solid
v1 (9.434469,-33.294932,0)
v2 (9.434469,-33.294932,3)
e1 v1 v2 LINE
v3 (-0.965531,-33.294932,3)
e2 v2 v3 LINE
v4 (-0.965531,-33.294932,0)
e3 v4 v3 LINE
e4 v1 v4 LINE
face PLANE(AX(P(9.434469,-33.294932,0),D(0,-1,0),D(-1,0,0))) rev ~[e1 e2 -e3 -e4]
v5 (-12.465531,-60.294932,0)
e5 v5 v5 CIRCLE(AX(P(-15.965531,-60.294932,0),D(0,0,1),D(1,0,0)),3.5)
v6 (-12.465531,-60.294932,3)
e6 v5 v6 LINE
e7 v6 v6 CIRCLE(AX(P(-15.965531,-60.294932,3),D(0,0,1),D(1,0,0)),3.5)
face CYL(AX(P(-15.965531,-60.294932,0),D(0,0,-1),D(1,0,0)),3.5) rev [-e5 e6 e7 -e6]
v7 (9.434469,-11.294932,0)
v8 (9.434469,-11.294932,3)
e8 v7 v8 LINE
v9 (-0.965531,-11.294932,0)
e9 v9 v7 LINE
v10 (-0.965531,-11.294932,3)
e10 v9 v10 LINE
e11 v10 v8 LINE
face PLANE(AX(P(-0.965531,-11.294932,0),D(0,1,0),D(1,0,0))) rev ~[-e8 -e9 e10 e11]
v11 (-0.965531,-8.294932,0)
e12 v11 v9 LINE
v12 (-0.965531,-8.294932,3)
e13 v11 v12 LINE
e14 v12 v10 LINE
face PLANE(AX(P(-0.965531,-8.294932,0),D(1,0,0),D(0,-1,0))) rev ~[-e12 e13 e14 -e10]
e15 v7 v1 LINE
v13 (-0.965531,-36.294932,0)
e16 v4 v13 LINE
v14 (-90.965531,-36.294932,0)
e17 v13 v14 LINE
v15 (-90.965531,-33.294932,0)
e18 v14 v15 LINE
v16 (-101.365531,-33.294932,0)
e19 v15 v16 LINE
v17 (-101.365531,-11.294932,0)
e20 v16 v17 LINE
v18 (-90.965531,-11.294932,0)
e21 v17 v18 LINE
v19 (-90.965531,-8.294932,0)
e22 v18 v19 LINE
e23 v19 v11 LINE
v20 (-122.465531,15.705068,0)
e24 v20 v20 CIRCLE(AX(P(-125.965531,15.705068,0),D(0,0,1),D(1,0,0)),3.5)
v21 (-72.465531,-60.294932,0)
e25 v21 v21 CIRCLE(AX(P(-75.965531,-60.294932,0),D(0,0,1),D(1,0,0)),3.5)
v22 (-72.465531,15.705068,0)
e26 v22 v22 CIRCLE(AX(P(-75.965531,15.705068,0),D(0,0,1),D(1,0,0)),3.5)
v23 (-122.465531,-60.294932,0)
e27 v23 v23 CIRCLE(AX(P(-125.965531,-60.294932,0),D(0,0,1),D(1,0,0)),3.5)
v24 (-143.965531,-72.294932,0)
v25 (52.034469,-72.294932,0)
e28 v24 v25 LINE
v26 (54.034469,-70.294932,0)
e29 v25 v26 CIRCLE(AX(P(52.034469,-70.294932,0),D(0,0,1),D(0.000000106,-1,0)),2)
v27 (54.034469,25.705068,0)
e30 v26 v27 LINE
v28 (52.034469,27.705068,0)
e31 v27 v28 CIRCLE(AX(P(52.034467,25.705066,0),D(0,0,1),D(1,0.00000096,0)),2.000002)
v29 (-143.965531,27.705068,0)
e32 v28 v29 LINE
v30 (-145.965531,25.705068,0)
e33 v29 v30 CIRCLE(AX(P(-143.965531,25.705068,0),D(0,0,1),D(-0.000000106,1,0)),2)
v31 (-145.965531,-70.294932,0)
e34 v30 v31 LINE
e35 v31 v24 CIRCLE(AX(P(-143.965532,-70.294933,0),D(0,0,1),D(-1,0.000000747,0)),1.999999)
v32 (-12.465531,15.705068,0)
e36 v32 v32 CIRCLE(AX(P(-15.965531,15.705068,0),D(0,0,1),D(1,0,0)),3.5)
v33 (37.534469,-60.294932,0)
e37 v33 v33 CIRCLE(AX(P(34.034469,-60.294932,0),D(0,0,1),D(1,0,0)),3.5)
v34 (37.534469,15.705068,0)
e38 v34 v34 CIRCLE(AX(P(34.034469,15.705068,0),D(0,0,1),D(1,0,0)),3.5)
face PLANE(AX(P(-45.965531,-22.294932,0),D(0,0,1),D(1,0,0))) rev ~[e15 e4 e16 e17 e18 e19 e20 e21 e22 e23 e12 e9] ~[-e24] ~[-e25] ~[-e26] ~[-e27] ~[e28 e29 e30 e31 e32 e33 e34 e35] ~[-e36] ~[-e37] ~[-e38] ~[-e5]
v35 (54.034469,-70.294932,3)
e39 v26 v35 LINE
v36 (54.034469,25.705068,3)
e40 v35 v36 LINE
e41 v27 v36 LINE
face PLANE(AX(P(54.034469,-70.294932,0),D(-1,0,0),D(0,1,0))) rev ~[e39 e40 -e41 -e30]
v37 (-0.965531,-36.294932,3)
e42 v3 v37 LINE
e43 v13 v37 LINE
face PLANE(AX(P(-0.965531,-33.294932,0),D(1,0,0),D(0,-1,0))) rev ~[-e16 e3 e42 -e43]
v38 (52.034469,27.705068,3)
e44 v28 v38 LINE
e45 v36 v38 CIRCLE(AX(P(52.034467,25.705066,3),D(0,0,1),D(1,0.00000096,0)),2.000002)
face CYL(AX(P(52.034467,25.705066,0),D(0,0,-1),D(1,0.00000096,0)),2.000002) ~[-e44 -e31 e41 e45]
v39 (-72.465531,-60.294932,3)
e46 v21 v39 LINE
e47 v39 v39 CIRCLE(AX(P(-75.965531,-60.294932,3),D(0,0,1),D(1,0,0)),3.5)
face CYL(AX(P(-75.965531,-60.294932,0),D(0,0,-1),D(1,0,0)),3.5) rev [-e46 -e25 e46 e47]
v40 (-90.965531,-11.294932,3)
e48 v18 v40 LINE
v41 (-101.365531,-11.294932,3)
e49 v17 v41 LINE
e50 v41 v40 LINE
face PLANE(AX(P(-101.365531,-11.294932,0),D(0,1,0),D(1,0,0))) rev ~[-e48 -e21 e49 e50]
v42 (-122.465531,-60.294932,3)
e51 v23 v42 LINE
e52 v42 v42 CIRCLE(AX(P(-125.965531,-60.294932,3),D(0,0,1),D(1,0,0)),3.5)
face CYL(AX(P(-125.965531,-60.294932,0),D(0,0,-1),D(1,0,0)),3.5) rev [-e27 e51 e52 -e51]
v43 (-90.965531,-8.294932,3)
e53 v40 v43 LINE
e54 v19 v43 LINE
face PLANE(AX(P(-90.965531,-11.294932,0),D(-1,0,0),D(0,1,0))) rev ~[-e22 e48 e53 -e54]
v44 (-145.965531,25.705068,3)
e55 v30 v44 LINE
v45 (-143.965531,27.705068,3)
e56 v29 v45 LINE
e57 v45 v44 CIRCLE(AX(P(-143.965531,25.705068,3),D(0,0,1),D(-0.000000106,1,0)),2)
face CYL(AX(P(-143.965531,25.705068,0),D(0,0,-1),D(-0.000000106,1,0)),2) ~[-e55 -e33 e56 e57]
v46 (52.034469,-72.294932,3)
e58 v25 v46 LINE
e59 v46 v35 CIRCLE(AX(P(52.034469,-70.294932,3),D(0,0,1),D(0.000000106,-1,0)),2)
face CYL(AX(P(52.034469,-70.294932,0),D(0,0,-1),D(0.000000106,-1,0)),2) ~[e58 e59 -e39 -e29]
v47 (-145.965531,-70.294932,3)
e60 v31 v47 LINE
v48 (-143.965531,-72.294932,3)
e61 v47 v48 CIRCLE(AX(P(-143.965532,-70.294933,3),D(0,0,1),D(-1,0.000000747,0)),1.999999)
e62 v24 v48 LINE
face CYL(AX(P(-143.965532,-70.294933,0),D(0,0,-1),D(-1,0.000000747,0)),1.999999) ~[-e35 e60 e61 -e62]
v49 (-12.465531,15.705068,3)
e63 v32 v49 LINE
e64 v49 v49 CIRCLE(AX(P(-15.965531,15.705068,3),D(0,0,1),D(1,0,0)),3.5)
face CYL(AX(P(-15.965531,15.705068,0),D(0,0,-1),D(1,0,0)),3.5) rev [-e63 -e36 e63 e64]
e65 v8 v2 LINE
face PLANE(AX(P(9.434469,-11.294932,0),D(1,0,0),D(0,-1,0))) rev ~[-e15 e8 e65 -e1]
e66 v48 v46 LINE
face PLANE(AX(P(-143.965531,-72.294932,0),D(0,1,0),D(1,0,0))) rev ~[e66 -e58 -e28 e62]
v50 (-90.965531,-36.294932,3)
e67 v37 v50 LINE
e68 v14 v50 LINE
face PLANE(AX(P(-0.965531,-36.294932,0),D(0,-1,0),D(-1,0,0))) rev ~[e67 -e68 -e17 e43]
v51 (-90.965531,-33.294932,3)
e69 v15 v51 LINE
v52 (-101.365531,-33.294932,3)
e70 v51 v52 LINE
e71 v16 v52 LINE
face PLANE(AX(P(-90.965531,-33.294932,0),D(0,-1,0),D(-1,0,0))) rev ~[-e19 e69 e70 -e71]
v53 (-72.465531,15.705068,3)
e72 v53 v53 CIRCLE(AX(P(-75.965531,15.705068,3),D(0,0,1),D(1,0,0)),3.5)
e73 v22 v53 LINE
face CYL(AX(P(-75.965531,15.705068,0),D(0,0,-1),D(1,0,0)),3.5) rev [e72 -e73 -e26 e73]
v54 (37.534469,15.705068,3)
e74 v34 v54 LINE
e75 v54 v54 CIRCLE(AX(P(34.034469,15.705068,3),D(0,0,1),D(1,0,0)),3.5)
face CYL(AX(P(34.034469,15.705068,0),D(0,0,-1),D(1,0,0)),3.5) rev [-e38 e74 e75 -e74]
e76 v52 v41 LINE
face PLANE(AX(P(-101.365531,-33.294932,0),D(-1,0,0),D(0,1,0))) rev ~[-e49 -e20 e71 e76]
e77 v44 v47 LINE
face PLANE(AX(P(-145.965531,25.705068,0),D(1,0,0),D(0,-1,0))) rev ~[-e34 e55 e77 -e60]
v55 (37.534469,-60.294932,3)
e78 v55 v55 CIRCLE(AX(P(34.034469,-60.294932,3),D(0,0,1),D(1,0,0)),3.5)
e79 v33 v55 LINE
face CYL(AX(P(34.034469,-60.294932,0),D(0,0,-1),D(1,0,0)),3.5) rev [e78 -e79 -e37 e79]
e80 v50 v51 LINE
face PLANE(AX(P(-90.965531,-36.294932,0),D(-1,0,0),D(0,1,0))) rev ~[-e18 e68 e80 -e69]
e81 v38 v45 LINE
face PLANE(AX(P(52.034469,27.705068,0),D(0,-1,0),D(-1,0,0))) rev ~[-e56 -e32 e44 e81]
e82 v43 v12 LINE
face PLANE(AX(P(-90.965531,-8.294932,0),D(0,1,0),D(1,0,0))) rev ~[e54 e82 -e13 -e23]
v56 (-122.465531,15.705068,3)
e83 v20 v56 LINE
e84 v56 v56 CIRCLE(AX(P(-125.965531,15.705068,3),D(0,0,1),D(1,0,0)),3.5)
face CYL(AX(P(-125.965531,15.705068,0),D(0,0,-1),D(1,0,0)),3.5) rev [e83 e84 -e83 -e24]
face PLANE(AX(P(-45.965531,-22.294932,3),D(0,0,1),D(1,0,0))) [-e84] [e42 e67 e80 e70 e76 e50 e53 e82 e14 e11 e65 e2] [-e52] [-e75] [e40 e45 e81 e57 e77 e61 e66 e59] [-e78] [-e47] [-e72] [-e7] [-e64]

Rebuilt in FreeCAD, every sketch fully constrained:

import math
import FreeCAD as App
import Part
import Sketcher

V = App.Vector

doc = App.newDocument("Part")
body = doc.addObject("PartDesign::Body", "Body")

# Sketch on XY plane
sketch1 = body.newObject("Sketcher::SketchObject", "Sketch")
sketch1.AttachmentSupport = (doc.getObject("XY_Plane"), [""])
sketch1.MapMode = "FlatFace"
sketch1.addGeometry(Part.ArcOfCircle(Part.Circle(V(-144, 25.7, 0), V(0, 0, 1), 2), math.radians(90), math.radians(180)), False)
sketch1.addGeometry(Part.LineSegment(V(-146, 25.7, 0), V(-146, -70.3, 0)), False)
sketch1.addGeometry(Part.ArcOfCircle(Part.Circle(V(-144, -70.3, 0), V(0, 0, 1), 2), math.radians(180), math.radians(270)), False)
sketch1.addGeometry(Part.LineSegment(V(-144, -72.3, 0), V(52, -72.3, 0)), False)
sketch1.addGeometry(Part.ArcOfCircle(Part.Circle(V(52, -70.3, 0), V(0, 0, 1), 2), math.radians(-90), math.radians(0)), False)
sketch1.addGeometry(Part.LineSegment(V(54, -70.3, 0), V(54, 25.7, 0)), False)
sketch1.addGeometry(Part.ArcOfCircle(Part.Circle(V(52, 25.7, 0), V(0, 0, 1), 2), math.radians(0), math.radians(90)), False)
sketch1.addGeometry(Part.LineSegment(V(52, 27.7, 0), V(-144, 27.7, 0)), False)
sketch1.addGeometry(Part.Circle(V(-126, -60.3, 0), V(0, 0, 1), 3.5), False)
sketch1.addGeometry(Part.Circle(V(-76, -60.3, 0), V(0, 0, 1), 3.5), False)
sketch1.addGeometry(Part.Circle(V(-16, -60.3, 0), V(0, 0, 1), 3.5), False)
sketch1.addGeometry(Part.Circle(V(34, -60.3, 0), V(0, 0, 1), 3.5), False)
sketch1.addGeometry(Part.Circle(V(-126, 15.7, 0), V(0, 0, 1), 3.5), False)
sketch1.addGeometry(Part.Circle(V(-76, 15.7, 0), V(0, 0, 1), 3.5), False)
sketch1.addGeometry(Part.LineSegment(V(-101.4, -11.3, 0), V(-91, -11.3, 0)), False)
sketch1.addGeometry(Part.LineSegment(V(-91, -11.3, 0), V(-91, -8.3, 0)), False)
sketch1.addGeometry(Part.LineSegment(V(-91, -8.3, 0), V(-1, -8.3, 0)), False)
sketch1.addGeometry(Part.LineSegment(V(-1, -8.3, 0), V(-1, -11.3, 0)), False)
sketch1.addGeometry(Part.LineSegment(V(-1, -11.3, 0), V(9.4, -11.3, 0)), False)
sketch1.addGeometry(Part.LineSegment(V(9.4, -11.3, 0), V(9.4, -33.3, 0)), False)
sketch1.addGeometry(Part.LineSegment(V(9.4, -33.3, 0), V(-1, -33.3, 0)), False)
sketch1.addGeometry(Part.LineSegment(V(-1, -33.3, 0), V(-1, -36.3, 0)), False)
sketch1.addGeometry(Part.LineSegment(V(-1, -36.3, 0), V(-91, -36.3, 0)), False)
sketch1.addGeometry(Part.LineSegment(V(-91, -36.3, 0), V(-91, -33.3, 0)), False)
sketch1.addGeometry(Part.LineSegment(V(-91, -33.3, 0), V(-101.4, -33.3, 0)), False)
sketch1.addGeometry(Part.LineSegment(V(-101.4, -33.3, 0), V(-101.4, -11.3, 0)), False)
sketch1.addGeometry(Part.Circle(V(-16, 15.7, 0), V(0, 0, 1), 3.5), False)
sketch1.addGeometry(Part.Circle(V(34, 15.7, 0), V(0, 0, 1), 3.5), False)
sketch1.addConstraint(Sketcher.Constraint("Tangent", 0, 2, 1, 1))
sketch1.addConstraint(Sketcher.Constraint("Tangent", 1, 2, 2, 1))
sketch1.addConstraint(Sketcher.Constraint("Tangent", 2, 2, 3, 1))
sketch1.addConstraint(Sketcher.Constraint("Tangent", 3, 2, 4, 1))
sketch1.addConstraint(Sketcher.Constraint("Tangent", 4, 2, 5, 1))
sketch1.addConstraint(Sketcher.Constraint("Tangent", 5, 2, 6, 1))
sketch1.addConstraint(Sketcher.Constraint("Tangent", 6, 2, 7, 1))
sketch1.addConstraint(Sketcher.Constraint("Tangent", 7, 2, 0, 1))
sketch1.addConstraint(Sketcher.Constraint("Coincident", 14, 2, 15, 1))
sketch1.addConstraint(Sketcher.Constraint("Coincident", 15, 2, 16, 1))
sketch1.addConstraint(Sketcher.Constraint("Coincident", 16, 2, 17, 1))
sketch1.addConstraint(Sketcher.Constraint("Coincident", 17, 2, 18, 1))
sketch1.addConstraint(Sketcher.Constraint("Coincident", 18, 2, 19, 1))
sketch1.addConstraint(Sketcher.Constraint("Coincident", 19, 2, 20, 1))
sketch1.addConstraint(Sketcher.Constraint("Coincident", 20, 2, 21, 1))
sketch1.addConstraint(Sketcher.Constraint("Coincident", 21, 2, 22, 1))
sketch1.addConstraint(Sketcher.Constraint("Coincident", 22, 2, 23, 1))
sketch1.addConstraint(Sketcher.Constraint("Coincident", 23, 2, 24, 1))
sketch1.addConstraint(Sketcher.Constraint("Coincident", 24, 2, 25, 1))
sketch1.addConstraint(Sketcher.Constraint("Coincident", 25, 2, 14, 1))
sketch1.addConstraint(Sketcher.Constraint("Vertical", 1))
sketch1.addConstraint(Sketcher.Constraint("Horizontal", 3))
sketch1.addConstraint(Sketcher.Constraint("Vertical", 5))
sketch1.addConstraint(Sketcher.Constraint("Horizontal", 7))
sketch1.addConstraint(Sketcher.Constraint("Horizontal", 14))
sketch1.addConstraint(Sketcher.Constraint("Vertical", 15))
sketch1.addConstraint(Sketcher.Constraint("Horizontal", 16))
sketch1.addConstraint(Sketcher.Constraint("Vertical", 17))
sketch1.addConstraint(Sketcher.Constraint("Horizontal", 18))
sketch1.addConstraint(Sketcher.Constraint("Vertical", 19))
sketch1.addConstraint(Sketcher.Constraint("Horizontal", 20))
sketch1.addConstraint(Sketcher.Constraint("Vertical", 21))
sketch1.addConstraint(Sketcher.Constraint("Horizontal", 22))
sketch1.addConstraint(Sketcher.Constraint("Vertical", 23))
sketch1.addConstraint(Sketcher.Constraint("Horizontal", 24))
sketch1.addConstraint(Sketcher.Constraint("Vertical", 25))
sketch1.addConstraint(Sketcher.Constraint("Equal", 0, 2))
sketch1.addConstraint(Sketcher.Constraint("Equal", 2, 4))
sketch1.addConstraint(Sketcher.Constraint("Equal", 4, 6))
sketch1.addConstraint(Sketcher.Constraint("Equal", 8, 9))
sketch1.addConstraint(Sketcher.Constraint("Equal", 9, 10))
sketch1.addConstraint(Sketcher.Constraint("Equal", 10, 11))
sketch1.addConstraint(Sketcher.Constraint("Equal", 11, 12))
sketch1.addConstraint(Sketcher.Constraint("Equal", 12, 13))
sketch1.addConstraint(Sketcher.Constraint("Equal", 13, 26))
sketch1.addConstraint(Sketcher.Constraint("Equal", 26, 27))
sketch1.addConstraint(Sketcher.Constraint("Horizontal", 8, 3, 9, 3))
sketch1.addConstraint(Sketcher.Constraint("Horizontal", 9, 3, 10, 3))
sketch1.addConstraint(Sketcher.Constraint("Horizontal", 10, 3, 11, 3))
sketch1.addConstraint(Sketcher.Constraint("Horizontal", 12, 3, 13, 3))
sketch1.addConstraint(Sketcher.Constraint("Horizontal", 13, 3, 26, 3))
sketch1.addConstraint(Sketcher.Constraint("Horizontal", 26, 3, 27, 3))
sketch1.addConstraint(Sketcher.Constraint("Horizontal", 14, 2, 17, 2))
sketch1.addConstraint(Sketcher.Constraint("Horizontal", 20, 2, 23, 2))
sketch1.addConstraint(Sketcher.Constraint("Vertical", 8, 3, 12, 3))
sketch1.addConstraint(Sketcher.Constraint("Vertical", 9, 3, 13, 3))
sketch1.addConstraint(Sketcher.Constraint("Vertical", 10, 3, 26, 3))
sketch1.addConstraint(Sketcher.Constraint("Vertical", 11, 3, 27, 3))
sketch1.addConstraint(Sketcher.Constraint("Vertical", 17, 2, 20, 2))
sketch1.addConstraint(Sketcher.Constraint("Vertical", 15, 2, 22, 2))
sketch1.addConstraint(Sketcher.Constraint("Equal", 14, 18))
sketch1.addConstraint(Sketcher.Constraint("Equal", 17, 21))
sketch1.addConstraint(Sketcher.Constraint("Diameter", 8, 7.0))
sketch1.addConstraint(Sketcher.Constraint("Radius", 0, 2.0))
sketch1.addConstraint(Sketcher.Constraint("DistanceX", 3, 1, 3, 2, 196.0))
sketch1.addConstraint(Sketcher.Constraint("DistanceX", 16, 1, 16, 2, 90.0))
sketch1.addConstraint(Sketcher.Constraint("DistanceY", 1, 2, 1, 1, 96.0))
sketch1.addConstraint(Sketcher.Constraint("DistanceY", 15, 1, 15, 2, 3.0))
sketch1.addConstraint(Sketcher.Constraint("DistanceY", 19, 2, 19, 1, 22.0))
sketch1.addConstraint(Sketcher.Constraint("DistanceX", 14, 1, 14, 2, 10.4))
sketch1.addConstraint(Sketcher.Constraint("DistanceX", 2, 3, 8, 3, 18.000001))
sketch1.addConstraint(Sketcher.Constraint("DistanceY", 2, 3, 8, 3, 10.000001))
sketch1.addConstraint(Sketcher.Constraint("DistanceX", 8, 3, 9, 3, 50.0))
sketch1.addConstraint(Sketcher.Constraint("DistanceX", 9, 3, 10, 3, 60.0))
sketch1.addConstraint(Sketcher.Constraint("DistanceX", 11, 3, 4, 3, 18.0))
sketch1.addConstraint(Sketcher.Constraint("DistanceY", 12, 3, 0, 3, 10.0))
sketch1.addConstraint(Sketcher.Constraint("DistanceX", 14, 2, 13, 3, 15.0))
sketch1.addConstraint(Sketcher.Constraint("DistanceY", 14, 2, 13, 3, 27.0))
sketch1.addConstraint(Sketcher.Constraint("DistanceX", 0, 3, -1, 1, 143.965531))
sketch1.addConstraint(Sketcher.Constraint("DistanceY", 4, 3, -1, 1, 70.294932))
pad1 = body.newObject("PartDesign::Pad", "Pad")
pad1.Profile = sketch1
pad1.Length = 3

doc.recompute()
